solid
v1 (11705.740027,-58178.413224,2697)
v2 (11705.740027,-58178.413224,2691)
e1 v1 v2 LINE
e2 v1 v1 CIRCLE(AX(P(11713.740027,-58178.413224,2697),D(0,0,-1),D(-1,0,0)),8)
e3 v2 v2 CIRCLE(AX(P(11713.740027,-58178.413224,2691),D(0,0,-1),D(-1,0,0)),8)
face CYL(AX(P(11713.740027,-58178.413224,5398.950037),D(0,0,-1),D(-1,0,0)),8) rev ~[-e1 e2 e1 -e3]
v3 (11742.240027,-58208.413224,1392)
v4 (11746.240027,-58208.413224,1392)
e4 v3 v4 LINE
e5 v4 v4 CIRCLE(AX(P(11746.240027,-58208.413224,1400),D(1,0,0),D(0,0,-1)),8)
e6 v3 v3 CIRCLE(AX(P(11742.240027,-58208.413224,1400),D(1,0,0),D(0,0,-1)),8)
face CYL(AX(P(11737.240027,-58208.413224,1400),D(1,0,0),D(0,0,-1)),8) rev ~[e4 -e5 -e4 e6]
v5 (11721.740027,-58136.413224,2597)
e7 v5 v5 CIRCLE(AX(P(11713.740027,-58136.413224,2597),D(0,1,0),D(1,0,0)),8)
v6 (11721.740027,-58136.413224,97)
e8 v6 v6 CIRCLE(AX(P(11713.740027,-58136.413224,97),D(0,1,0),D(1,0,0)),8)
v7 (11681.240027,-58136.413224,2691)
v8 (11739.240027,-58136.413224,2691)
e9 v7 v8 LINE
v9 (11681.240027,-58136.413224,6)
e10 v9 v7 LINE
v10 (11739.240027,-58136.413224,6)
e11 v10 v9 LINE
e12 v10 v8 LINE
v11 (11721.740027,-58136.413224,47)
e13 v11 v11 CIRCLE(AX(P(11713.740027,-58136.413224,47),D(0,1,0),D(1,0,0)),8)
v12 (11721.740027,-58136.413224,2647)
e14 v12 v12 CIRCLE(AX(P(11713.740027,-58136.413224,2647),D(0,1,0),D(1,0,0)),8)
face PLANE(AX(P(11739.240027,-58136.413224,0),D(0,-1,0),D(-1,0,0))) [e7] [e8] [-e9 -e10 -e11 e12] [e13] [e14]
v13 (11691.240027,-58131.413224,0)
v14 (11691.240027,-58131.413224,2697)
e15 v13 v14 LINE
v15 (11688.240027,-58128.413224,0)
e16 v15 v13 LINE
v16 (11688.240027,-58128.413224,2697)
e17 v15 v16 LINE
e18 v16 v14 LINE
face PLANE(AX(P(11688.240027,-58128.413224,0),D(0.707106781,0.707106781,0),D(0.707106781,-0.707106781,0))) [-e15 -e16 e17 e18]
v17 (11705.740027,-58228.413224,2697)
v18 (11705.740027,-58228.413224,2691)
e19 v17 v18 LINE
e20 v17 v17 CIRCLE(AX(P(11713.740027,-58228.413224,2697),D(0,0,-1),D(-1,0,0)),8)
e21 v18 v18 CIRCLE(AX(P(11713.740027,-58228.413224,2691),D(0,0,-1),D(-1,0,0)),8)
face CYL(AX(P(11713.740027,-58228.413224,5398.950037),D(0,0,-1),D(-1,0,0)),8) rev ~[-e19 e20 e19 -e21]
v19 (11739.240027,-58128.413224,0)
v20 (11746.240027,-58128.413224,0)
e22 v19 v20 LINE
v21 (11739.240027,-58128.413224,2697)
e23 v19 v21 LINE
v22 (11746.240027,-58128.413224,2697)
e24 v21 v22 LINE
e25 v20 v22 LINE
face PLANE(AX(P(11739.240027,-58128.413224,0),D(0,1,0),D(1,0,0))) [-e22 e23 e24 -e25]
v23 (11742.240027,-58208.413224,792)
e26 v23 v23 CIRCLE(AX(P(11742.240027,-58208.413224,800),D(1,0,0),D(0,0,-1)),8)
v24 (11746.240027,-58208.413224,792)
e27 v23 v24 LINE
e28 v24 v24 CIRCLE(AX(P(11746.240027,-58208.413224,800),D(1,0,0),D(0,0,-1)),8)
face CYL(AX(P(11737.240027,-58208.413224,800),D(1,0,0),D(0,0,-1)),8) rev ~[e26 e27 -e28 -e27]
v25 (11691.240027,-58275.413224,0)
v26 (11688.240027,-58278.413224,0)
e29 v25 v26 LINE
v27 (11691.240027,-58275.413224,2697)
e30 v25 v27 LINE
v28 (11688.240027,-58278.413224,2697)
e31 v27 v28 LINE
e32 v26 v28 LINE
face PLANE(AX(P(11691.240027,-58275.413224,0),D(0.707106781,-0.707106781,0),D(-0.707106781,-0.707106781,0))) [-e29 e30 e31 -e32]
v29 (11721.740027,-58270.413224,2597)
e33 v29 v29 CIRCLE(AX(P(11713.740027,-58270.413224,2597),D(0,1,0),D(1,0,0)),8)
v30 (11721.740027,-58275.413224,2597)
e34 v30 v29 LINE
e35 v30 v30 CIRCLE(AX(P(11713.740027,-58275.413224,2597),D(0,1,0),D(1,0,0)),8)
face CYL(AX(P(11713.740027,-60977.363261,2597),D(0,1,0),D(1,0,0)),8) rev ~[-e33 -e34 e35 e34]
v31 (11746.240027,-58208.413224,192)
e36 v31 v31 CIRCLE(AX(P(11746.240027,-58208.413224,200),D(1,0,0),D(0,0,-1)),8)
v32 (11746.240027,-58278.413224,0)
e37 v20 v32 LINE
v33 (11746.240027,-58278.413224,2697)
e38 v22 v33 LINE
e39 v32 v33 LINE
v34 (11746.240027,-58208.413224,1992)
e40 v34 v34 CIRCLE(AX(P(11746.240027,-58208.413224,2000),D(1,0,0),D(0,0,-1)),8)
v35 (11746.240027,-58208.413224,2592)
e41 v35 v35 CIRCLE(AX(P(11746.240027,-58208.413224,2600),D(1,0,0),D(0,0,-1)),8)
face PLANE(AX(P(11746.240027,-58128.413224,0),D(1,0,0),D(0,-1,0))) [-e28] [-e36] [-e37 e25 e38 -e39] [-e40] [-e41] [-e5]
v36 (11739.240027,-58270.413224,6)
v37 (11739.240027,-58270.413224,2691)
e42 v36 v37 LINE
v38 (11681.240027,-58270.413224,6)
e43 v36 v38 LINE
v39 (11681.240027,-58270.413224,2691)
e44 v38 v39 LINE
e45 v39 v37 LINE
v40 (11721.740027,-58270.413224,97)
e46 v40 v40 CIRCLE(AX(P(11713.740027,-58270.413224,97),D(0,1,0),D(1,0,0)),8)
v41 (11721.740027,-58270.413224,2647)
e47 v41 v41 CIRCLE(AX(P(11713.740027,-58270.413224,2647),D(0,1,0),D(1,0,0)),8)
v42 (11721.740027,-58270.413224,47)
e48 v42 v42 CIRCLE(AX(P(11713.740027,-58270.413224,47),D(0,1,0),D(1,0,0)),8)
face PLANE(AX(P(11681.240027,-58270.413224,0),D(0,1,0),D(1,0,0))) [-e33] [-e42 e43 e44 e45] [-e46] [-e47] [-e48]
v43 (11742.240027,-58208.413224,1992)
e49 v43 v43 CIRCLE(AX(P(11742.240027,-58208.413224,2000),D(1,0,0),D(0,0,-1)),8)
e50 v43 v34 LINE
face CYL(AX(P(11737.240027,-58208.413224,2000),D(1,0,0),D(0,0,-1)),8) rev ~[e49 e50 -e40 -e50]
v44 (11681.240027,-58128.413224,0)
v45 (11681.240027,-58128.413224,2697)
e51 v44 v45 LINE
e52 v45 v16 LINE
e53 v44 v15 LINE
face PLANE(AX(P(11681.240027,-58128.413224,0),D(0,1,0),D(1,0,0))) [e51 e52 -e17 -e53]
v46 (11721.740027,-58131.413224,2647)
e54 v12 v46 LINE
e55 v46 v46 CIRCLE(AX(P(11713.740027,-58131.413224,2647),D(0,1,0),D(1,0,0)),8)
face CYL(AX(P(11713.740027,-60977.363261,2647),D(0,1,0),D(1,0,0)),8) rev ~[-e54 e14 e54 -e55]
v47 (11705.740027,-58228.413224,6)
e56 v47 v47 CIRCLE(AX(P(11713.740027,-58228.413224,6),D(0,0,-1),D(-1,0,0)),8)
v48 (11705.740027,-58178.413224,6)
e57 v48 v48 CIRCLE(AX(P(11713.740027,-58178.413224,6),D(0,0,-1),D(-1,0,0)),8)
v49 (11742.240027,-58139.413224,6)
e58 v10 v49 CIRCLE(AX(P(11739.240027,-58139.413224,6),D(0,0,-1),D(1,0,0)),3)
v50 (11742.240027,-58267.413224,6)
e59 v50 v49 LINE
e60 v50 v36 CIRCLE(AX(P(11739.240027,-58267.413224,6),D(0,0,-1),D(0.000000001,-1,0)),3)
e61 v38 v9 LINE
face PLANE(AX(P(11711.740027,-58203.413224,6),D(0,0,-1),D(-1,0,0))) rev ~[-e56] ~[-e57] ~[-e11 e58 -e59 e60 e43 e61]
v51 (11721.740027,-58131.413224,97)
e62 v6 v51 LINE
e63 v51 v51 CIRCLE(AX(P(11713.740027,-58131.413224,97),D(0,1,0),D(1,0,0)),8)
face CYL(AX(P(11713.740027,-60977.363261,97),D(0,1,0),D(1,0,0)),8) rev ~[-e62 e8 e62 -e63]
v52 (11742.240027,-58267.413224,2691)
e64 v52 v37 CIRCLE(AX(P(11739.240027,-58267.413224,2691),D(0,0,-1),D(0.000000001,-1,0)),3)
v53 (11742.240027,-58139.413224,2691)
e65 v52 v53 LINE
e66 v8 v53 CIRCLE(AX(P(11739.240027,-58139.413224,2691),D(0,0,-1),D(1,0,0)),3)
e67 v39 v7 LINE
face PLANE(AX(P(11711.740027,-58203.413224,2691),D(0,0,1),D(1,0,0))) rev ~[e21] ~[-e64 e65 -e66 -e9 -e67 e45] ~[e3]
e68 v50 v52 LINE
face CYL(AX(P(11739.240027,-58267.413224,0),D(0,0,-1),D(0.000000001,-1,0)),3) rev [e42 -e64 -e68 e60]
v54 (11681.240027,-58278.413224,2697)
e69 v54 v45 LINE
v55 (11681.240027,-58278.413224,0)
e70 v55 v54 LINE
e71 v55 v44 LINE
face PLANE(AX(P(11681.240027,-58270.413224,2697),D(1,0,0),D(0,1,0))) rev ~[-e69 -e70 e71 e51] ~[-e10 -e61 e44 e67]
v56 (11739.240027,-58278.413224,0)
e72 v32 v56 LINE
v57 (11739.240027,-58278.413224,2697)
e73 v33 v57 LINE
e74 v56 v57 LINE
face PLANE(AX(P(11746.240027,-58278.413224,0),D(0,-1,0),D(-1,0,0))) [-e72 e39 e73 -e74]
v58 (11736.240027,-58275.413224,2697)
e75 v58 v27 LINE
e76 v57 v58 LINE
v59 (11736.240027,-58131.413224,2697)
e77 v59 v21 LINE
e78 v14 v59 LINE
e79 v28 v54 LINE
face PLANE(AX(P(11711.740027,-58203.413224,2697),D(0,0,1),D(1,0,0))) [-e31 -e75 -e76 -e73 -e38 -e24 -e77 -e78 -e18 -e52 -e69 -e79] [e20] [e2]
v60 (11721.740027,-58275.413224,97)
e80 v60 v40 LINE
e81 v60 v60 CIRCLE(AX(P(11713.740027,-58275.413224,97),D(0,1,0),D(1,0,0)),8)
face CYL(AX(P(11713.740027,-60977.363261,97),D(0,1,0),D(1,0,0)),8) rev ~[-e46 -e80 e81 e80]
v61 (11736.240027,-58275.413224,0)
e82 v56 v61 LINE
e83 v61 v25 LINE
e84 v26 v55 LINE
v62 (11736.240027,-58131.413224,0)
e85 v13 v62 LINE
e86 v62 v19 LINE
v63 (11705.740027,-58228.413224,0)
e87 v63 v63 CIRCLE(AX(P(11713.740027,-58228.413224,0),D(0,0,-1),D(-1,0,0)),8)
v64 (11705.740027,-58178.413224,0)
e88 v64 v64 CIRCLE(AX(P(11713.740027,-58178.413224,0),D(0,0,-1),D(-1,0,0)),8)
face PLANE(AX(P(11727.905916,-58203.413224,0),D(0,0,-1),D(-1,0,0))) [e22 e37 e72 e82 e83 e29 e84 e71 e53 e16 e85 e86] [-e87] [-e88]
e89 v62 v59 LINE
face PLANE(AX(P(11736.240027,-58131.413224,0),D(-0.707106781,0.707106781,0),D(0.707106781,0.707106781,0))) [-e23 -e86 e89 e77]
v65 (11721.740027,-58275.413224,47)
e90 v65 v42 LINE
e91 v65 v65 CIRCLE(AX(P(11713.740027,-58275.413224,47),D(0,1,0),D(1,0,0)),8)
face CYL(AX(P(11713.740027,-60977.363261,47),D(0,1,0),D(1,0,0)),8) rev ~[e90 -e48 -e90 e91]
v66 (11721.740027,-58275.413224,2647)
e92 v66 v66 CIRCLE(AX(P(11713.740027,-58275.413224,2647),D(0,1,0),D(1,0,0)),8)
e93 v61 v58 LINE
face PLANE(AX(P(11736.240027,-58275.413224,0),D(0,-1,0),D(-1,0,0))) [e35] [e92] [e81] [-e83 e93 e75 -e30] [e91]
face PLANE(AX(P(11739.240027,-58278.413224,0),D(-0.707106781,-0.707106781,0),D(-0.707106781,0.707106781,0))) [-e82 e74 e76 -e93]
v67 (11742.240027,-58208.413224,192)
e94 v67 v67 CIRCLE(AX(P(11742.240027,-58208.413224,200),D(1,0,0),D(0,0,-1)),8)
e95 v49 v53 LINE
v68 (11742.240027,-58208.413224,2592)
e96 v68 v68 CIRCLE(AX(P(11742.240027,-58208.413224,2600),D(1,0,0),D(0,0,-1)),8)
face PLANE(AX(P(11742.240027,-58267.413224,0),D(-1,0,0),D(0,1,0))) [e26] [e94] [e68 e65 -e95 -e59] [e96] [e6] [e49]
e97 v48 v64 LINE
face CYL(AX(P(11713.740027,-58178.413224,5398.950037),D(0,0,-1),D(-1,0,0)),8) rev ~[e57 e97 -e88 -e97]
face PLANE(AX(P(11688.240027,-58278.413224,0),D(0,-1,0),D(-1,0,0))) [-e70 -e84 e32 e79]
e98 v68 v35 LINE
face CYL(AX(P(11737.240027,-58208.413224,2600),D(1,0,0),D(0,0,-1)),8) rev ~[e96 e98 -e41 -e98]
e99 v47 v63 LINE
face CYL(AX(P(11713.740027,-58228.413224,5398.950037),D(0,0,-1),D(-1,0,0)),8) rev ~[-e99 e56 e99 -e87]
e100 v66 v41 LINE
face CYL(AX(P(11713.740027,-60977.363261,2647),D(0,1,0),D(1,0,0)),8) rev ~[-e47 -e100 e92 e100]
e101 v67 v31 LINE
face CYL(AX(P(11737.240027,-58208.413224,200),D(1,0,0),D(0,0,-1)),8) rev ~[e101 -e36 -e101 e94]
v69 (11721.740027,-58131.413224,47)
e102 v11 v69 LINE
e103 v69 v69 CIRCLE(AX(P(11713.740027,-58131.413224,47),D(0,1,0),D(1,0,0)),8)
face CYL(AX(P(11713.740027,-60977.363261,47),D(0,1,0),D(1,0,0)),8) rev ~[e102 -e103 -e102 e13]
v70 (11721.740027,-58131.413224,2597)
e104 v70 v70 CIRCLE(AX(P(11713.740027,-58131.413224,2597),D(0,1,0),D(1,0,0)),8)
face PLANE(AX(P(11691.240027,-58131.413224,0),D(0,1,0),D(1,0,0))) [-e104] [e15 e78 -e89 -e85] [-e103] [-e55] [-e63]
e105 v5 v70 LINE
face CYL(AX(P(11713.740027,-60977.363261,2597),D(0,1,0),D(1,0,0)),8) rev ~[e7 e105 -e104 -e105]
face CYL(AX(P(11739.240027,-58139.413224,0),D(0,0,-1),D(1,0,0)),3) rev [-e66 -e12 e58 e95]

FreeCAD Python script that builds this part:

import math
import FreeCAD as App
import Part
import Sketcher

V = App.Vector


def add_polygon(sketch, points):
    """Adds a closed chain of lines whose ends are joined by coincident constraints."""
    first, n = sketch.GeometryCount, len(points)
    for a, b in zip(points, points[1:] + points[:1]):
        sketch.addGeometry(Part.LineSegment(App.Vector(*a, 0), App.Vector(*b, 0)), False)
    for i in range(n):
        sketch.addConstraint(Sketcher.Constraint("Coincident", first + i, 2, first + (i + 1) % n, 1))

doc = App.newDocument("Part")
body = doc.addObject("PartDesign::Body", "Body")

sketch1 = body.newObject("Sketcher::SketchObject", "Sketch")
sketch1.AttachmentSupport = (doc.getObject("XY_Plane"), [""])
sketch1.MapMode = "FlatFace"
sketch1.addGeometry(Part.LineSegment(V(11736.2, -58275.4, 0), V(11739.2, -58278.4, 0)), False)
sketch1.addGeometry(Part.LineSegment(V(11739.2, -58278.4, 0), V(11746.2, -58278.4, 0)), False)
sketch1.addGeometry(Part.LineSegment(V(11746.2, -58278.4, 0), V(11746.2, -58128.4, 0)), False)
sketch1.addGeometry(Part.LineSegment(V(11746.2, -58128.4, 0), V(11739.2, -58128.4, 0)), False)
sketch1.addGeometry(Part.LineSegment(V(11739.2, -58128.4, 0), V(11736.2, -58131.4, 0)), False)
sketch1.addGeometry(Part.LineSegment(V(11736.2, -58131.4, 0), V(11691.2, -58131.4, 0)), False)
sketch1.addGeometry(Part.LineSegment(V(11691.2, -58131.4, 0), V(11688.2, -58128.4, 0)), False)
sketch1.addGeometry(Part.LineSegment(V(11688.2, -58128.4, 0), V(11681.2, -58128.4, 0)), False)
sketch1.addGeometry(Part.LineSegment(V(11681.2, -58128.4, 0), V(11681.2, -58136.4, 0)), False)
sketch1.addGeometry(Part.LineSegment(V(11681.2, -58136.4, 0), V(11739.2, -58136.4, 0)), False)
sketch1.addGeometry(Part.ArcOfCircle(Part.Circle(V(11739.2, -58139.4, 0), V(0, 0, 1), 3), math.radians(0), math.radians(90)), False)
sketch1.addGeometry(Part.LineSegment(V(11742.2, -58139.4, 0), V(11742.2, -58267.4, 0)), False)
sketch1.addGeometry(Part.ArcOfCircle(Part.Circle(V(11739.2, -58267.4, 0), V(0, 0, 1), 3), math.radians(-90), math.radians(0)), False)
sketch1.addGeometry(Part.LineSegment(V(11739.2, -58270.4, 0), V(11681.2, -58270.4, 0)), False)
sketch1.addGeometry(Part.LineSegment(V(11681.2, -58270.4, 0), V(11681.2, -58278.4, 0)), False)
sketch1.addGeometry(Part.LineSegment(V(11681.2, -58278.4, 0), V(11688.2, -58278.4, 0)), False)
sketch1.addGeometry(Part.LineSegment(V(11688.2, -58278.4, 0), V(11691.2, -58275.4, 0)), False)
sketch1.addGeometry(Part.LineSegment(V(11691.2, -58275.4, 0), V(11736.2, -58275.4, 0)), False)
sketch1.addConstraint(Sketcher.Constraint("Coincident", 0, 2, 1, 1))
sketch1.addConstraint(Sketcher.Constraint("Coincident", 1, 2, 2, 1))
sketch1.addConstraint(Sketcher.Constraint("Coincident", 2, 2, 3, 1))
sketch1.addConstraint(Sketcher.Constraint("Coincident", 3, 2, 4, 1))
sketch1.addConstraint(Sketcher.Constraint("Coincident", 4, 2, 5, 1))
sketch1.addConstraint(Sketcher.Constraint("Coincident", 5, 2, 6, 1))
sketch1.addConstraint(Sketcher.Constraint("Coincident", 6, 2, 7, 1))
sketch1.addConstraint(Sketcher.Constraint("Coincident", 7, 2, 8, 1))
sketch1.addConstraint(Sketcher.Constraint("Coincident", 8, 2, 9, 1))
sketch1.addConstraint(Sketcher.Constraint("Tangent", 9, 2, 10, 2))
sketch1.addConstraint(Sketcher.Constraint("Tangent", 10, 1, 11, 1))
sketch1.addConstraint(Sketcher.Constraint("Tangent", 11, 2, 12, 2))
sketch1.addConstraint(Sketcher.Constraint("Tangent", 12, 1, 13, 1))
sketch1.addConstraint(Sketcher.Constraint("Coincident", 13, 2, 14, 1))
sketch1.addConstraint(Sketcher.Constraint("Coincident", 14, 2, 15, 1))
sketch1.addConstraint(Sketcher.Constraint("Coincident", 15, 2, 16, 1))
sketch1.addConstraint(Sketcher.Constraint("Coincident", 16, 2, 17, 1))
sketch1.addConstraint(Sketcher.Constraint("Coincident", 17, 2, 0, 1))
sketch1.addConstraint(Sketcher.Constraint("Horizontal", 1))
sketch1.addConstraint(Sketcher.Constraint("Vertical", 2))
sketch1.addConstraint(Sketcher.Constraint("Horizontal", 3))
sketch1.addConstraint(Sketcher.Constraint("Horizontal", 5))
sketch1.addConstraint(Sketcher.Constraint("Horizontal", 7))
sketch1.addConstraint(Sketcher.Constraint("Vertical", 8))
sketch1.addConstraint(Sketcher.Constraint("Horizontal", 9))
sketch1.addConstraint(Sketcher.Constraint("Vertical", 11))
sketch1.addConstraint(Sketcher.Constraint("Horizontal", 13))
sketch1.addConstraint(Sketcher.Constraint("Vertical", 14))
sketch1.addConstraint(Sketcher.Constraint("Horizontal", 15))
sketch1.addConstraint(Sketcher.Constraint("Horizontal", 17))
sketch1.addConstraint(Sketcher.Constraint("Equal", 10, 12))
sketch1.addConstraint(Sketcher.Constraint("Perpendicular", 0, 4))
sketch1.addConstraint(Sketcher.Constraint("Perpendicular", 4, 6))
sketch1.addConstraint(Sketcher.Constraint("Perpendicular", 6, 16))
sketch1.addConstraint(Sketcher.Constraint("Horizontal", 3, 2, 6, 2))
sketch1.addConstraint(Sketcher.Constraint("Horizontal", 1, 2, 14, 2))
sketch1.addConstraint(Sketcher.Constraint("Vertical", 12, 3, 0, 2))
sketch1.addConstraint(Sketcher.Constraint("Vertical", 0, 2, 3, 2))
sketch1.addConstraint(Sketcher.Constraint("Vertical", 8, 2, 13, 2))
sketch1.addConstraint(Sketcher.Constraint("Vertical", 6, 2, 15, 2))
sketch1.addConstraint(Sketcher.Constraint("Vertical", 5, 2, 16, 2))
sketch1.addConstraint(Sketcher.Constraint("Vertical", 4, 2, 17, 2))
sketch1.addConstraint(Sketcher.Constraint("Equal", 3, 7))
sketch1.addConstraint(Sketcher.Constraint("Equal", 8, 14))
sketch1.addConstraint(Sketcher.Constraint("Radius", 10, 3.0))
sketch1.addConstraint(Sketcher.Constraint("DistanceX", 1, 1, 1, 2, 7.0))
sketch1.addConstraint(Sketcher.Constraint("DistanceX", 5, 2, 5, 1, 45.0))
sketch1.addConstraint(Sketcher.Constraint("DistanceX", 9, 1, 9, 2, 58.0))
sketch1.addConstraint(Sketcher.Constraint("DistanceY", 2, 1, 2, 2, 150.0))
sketch1.addConstraint(Sketcher.Constraint("DistanceY", 8, 2, 8, 1, 8.0))
sketch1.addConstraint(Sketcher.Constraint("DistanceX", -1, 1, 10, 3, 11739.240027))
sketch1.addConstraint(Sketcher.Constraint("DistanceY", 10, 3, -1, 1, 58139.413224))
pad1 = body.newObject("PartDesign::Pad", "Pad")
pad1.Profile = sketch1
pad1.Length = 2697

sketch2 = body.newObject("Sketcher::SketchObject", "Sketch001")
sketch2.AttachmentSupport = (doc.getObject("XY_Plane"), [""])
sketch2.MapMode = "FlatFace"
sketch2.AttachmentOffset = App.Placement(V(0, 0, 2697), App.Rotation())
add_polygon(sketch2, [(11681, -58136), (11681, -58270), (11742, -58270), (11742, -58136)])
sketch2.addConstraint(Sketcher.Constraint("Vertical", 0))
sketch2.addConstraint(Sketcher.Constraint("Horizontal", 1))
sketch2.addConstraint(Sketcher.Constraint("Vertical", 2))
sketch2.addConstraint(Sketcher.Constraint("Horizontal", 3))
sketch2.addConstraint(Sketcher.Constraint("DistanceX", 1, 1, 1, 2, 61.0))
sketch2.addConstraint(Sketcher.Constraint("DistanceY", 0, 2, 0, 1, 134.0))
sketch2.addConstraint(Sketcher.Constraint("DistanceX", -1, 1, 0, 2, 11681.240027))
sketch2.addConstraint(Sketcher.Constraint("DistanceY", 0, 2, -1, 1, 58270.413224))
pad2 = body.newObject("PartDesign::Pad", "Pad001")
pad2.Profile = sketch2
pad2.Length = 6
pad2.Reversed = True

sketch3 = body.newObject("Sketcher::SketchObject", "Sketch002")
sketch3.AttachmentSupport = (doc.getObject("XY_Plane"), [""])
sketch3.MapMode = "FlatFace"
add_polygon(sketch3, [(11742, -58136), (11742, -58270), (11681, -58270), (11681, -58136)])
sketch3.addConstraint(Sketcher.Constraint("Vertical", 0))
sketch3.addConstraint(Sketcher.Constraint("Horizontal", 1))
sketch3.addConstraint(Sketcher.Constraint("Vertical", 2))
sketch3.addConstraint(Sketcher.Constraint("Horizontal", 3))
sketch3.addConstraint(Sketcher.Constraint("DistanceX", 1, 2, 1, 1, 61.0))
sketch3.addConstraint(Sketcher.Constraint("DistanceY", 0, 2, 0, 1, 134.0))
sketch3.addConstraint(Sketcher.Constraint("DistanceX", -1, 1, 0, 2, 11742.240027))
sketch3.addConstraint(Sketcher.Constraint("DistanceY", 0, 2, -1, 1, 58270.413224))
pad3 = body.newObject("PartDesign::Pad", "Pad002")
pad3.Profile = sketch3
pad3.Length = 6

sketch4 = body.newObject("Sketcher::SketchObject", "Sketch003")
sketch4.AttachmentSupport = (doc.getObject("YZ_Plane"), [""])
sketch4.MapMode = "FlatFace"
sketch4.AttachmentOffset = App.Placement(V(0, 0, 11742.240027), App.Rotation())
sketch4.addGeometry(Part.Circle(V(-58208, 200, 0), V(0, 0, 1), 8), False)
sketch4.addGeometry(Part.Circle(V(-58208, 800, 0), V(0, 0, 1), 8), False)
sketch4.addGeometry(Part.Circle(V(-58208, 1400, 0), V(0, 0, 1), 8), False)
sketch4.addGeometry(Part.Circle(V(-58208, 2000, 0), V(0, 0, 1), 8), False)
sketch4.addGeometry(Part.Circle(V(-58208, 2600, 0), V(0, 0, 1), 8), False)
sketch4.addConstraint(Sketcher.Constraint("Equal", 0, 1))
sketch4.addConstraint(Sketcher.Constraint("Equal", 1, 2))
sketch4.addConstraint(Sketcher.Constraint("Equal", 2, 3))
sketch4.addConstraint(Sketcher.Constraint("Equal", 3, 4))
sketch4.addConstraint(Sketcher.Constraint("Vertical", 0, 3, 1, 3))
sketch4.addConstraint(Sketcher.Constraint("Vertical", 1, 3, 2, 3))
sketch4.addConstraint(Sketcher.Constraint("Vertical", 2, 3, 3, 3))
sketch4.addConstraint(Sketcher.Constraint("Vertical", 3, 3, 4, 3))
sketch4.addConstraint(Sketcher.Constraint("Diameter", 0, 16.0))
sketch4.addConstraint(Sketcher.Constraint("DistanceY", -1, 1, 0, 3, 200.0))
sketch4.addConstraint(Sketcher.Constraint("DistanceY", -1, 1, 1, 3, 800.0))
sketch4.addConstraint(Sketcher.Constraint("DistanceY", -1, 1, 2, 3, 1400.0))
sketch4.addConstraint(Sketcher.Constraint("DistanceY", -1, 1, 3, 3, 2000.0))
sketch4.addConstraint(Sketcher.Constraint("DistanceY", -1, 1, 4, 3, 2600.0))
sketch4.addConstraint(Sketcher.Constraint("DistanceX", 0, 3, -1, 1, 58208.413224))
doc.recompute()
hole = body.newObject("PartDesign::Hole", "Hole")
hole.Profile = sketch4
hole.ThreadType = "None"
hole.Diameter = 16
hole.DepthType = "Dimension"
hole.Depth = 5
hole.DrillPoint = "Angled"
hole.DrillPointAngle = 118
hole.Reversed = True

sketch5 = body.newObject("Sketcher::SketchObject", "Sketch004")
sketch5.AttachmentSupport = (doc.getObject("XZ_Plane"), [""])
sketch5.MapMode = "FlatFace"
sketch5.AttachmentOffset = App.Placement(V(0, 0, 58275.413224), App.Rotation())
sketch5.addGeometry(Part.Circle(V(11714, 2647, 0), V(0, 0, 1), 8), False)
sketch5.addConstraint(Sketcher.Constraint("Diameter", 0, 16.0))
sketch5.addConstraint(Sketcher.Constraint("DistanceY", -1, 1, 0, 3, 2647.0))
sketch5.addConstraint(Sketcher.Constraint("DistanceX", -1, 1, 0, 3, 11713.740027))
doc.recompute()
hole2 = body.newObject("PartDesign::Hole", "Hole001")
hole2.Profile = sketch5
hole2.ThreadType = "None"
hole2.Diameter = 16
hole2.DepthType = "ThroughAll"
doc.recompute()

linearpattern = body.newObject("PartDesign::LinearPattern", "LinearPattern")
linearpattern.Originals = [hole2]
linearpattern.Direction = (doc.getObject("Z_Axis"), [""])
linearpattern.Mode = "offset"
linearpattern.Offset = 50
linearpattern.Occurrences = 2
linearpattern.Reversed = True
body.Tip = linearpattern

sketch6 = body.newObject("Sketcher::SketchObject", "Sketch005")
sketch6.AttachmentSupport = (doc.getObject("XZ_Plane"), [""])
sketch6.MapMode = "FlatFace"
sketch6.AttachmentOffset = App.Placement(V(0, 0, 58275.413224), App.Rotation())
sketch6.addGeometry(Part.Circle(V(11714, 47, 0), V(0, 0, 1), 8), False)
sketch6.addGeometry(Part.Circle(V(11714, 97, 0), V(0, 0, 1), 8), False)
sketch6.addConstraint(Sketcher.Constraint("Equal", 0, 1))
sketch6.addConstraint(Sketcher.Constraint("Vertical", 0, 3, 1, 3))
sketch6.addConstraint(Sketcher.Constraint("Diameter", 0, 16.0))
sketch6.addConstraint(Sketcher.Constraint("DistanceY", -1, 1, 0, 3, 47.0))
sketch6.addConstraint(Sketcher.Constraint("DistanceY", -1, 1, 1, 3, 97.0))
sketch6.addConstraint(Sketcher.Constraint("DistanceX", -1, 1, 0, 3, 11713.740027))
doc.recompute()
hole3 = body.newObject("PartDesign::Hole", "Hole002")
hole3.Profile = sketch6
hole3.ThreadType = "None"
hole3.Diameter = 16
hole3.DepthType = "ThroughAll"

sketch7 = body.newObject("Sketcher::SketchObject", "Sketch006")
sketch7.AttachmentSupport = (doc.getObject("XY_Plane"), [""])
sketch7.MapMode = "FlatFace"
sketch7.AttachmentOffset = App.Placement(V(0, 0, 2697), App.Rotation())
sketch7.addGeometry(Part.Circle(V(11714, -58178, 0), V(0, 0, 1), 8), False)
sketch7.addConstraint(Sketcher.Constraint("Diameter", 0, 16.0))
sketch7.addConstraint(Sketcher.Constraint("DistanceX", -1, 1, 0, 3, 11713.740027))
sketch7.addConstraint(Sketcher.Constraint("DistanceY", 0, 3, -1, 1, 58178.413224))
doc.recompute()
hole4 = body.newObject("PartDesign::Hole", "Hole003")
hole4.Profile = sketch7
hole4.ThreadType = "None"
hole4.Diameter = 16
hole4.DepthType = "ThroughAll"
doc.recompute()

linearpattern2 = body.newObject("PartDesign::LinearPattern", "LinearPattern001")
linearpattern2.Originals = [hole4]
linearpattern2.Direction = (doc.getObject("Y_Axis"), [""])
linearpattern2.Mode = "offset"
linearpattern2.Offset = 50
linearpattern2.Occurrences = 2
linearpattern2.Reversed = True
body.Tip = linearpattern2

doc.recompute()
